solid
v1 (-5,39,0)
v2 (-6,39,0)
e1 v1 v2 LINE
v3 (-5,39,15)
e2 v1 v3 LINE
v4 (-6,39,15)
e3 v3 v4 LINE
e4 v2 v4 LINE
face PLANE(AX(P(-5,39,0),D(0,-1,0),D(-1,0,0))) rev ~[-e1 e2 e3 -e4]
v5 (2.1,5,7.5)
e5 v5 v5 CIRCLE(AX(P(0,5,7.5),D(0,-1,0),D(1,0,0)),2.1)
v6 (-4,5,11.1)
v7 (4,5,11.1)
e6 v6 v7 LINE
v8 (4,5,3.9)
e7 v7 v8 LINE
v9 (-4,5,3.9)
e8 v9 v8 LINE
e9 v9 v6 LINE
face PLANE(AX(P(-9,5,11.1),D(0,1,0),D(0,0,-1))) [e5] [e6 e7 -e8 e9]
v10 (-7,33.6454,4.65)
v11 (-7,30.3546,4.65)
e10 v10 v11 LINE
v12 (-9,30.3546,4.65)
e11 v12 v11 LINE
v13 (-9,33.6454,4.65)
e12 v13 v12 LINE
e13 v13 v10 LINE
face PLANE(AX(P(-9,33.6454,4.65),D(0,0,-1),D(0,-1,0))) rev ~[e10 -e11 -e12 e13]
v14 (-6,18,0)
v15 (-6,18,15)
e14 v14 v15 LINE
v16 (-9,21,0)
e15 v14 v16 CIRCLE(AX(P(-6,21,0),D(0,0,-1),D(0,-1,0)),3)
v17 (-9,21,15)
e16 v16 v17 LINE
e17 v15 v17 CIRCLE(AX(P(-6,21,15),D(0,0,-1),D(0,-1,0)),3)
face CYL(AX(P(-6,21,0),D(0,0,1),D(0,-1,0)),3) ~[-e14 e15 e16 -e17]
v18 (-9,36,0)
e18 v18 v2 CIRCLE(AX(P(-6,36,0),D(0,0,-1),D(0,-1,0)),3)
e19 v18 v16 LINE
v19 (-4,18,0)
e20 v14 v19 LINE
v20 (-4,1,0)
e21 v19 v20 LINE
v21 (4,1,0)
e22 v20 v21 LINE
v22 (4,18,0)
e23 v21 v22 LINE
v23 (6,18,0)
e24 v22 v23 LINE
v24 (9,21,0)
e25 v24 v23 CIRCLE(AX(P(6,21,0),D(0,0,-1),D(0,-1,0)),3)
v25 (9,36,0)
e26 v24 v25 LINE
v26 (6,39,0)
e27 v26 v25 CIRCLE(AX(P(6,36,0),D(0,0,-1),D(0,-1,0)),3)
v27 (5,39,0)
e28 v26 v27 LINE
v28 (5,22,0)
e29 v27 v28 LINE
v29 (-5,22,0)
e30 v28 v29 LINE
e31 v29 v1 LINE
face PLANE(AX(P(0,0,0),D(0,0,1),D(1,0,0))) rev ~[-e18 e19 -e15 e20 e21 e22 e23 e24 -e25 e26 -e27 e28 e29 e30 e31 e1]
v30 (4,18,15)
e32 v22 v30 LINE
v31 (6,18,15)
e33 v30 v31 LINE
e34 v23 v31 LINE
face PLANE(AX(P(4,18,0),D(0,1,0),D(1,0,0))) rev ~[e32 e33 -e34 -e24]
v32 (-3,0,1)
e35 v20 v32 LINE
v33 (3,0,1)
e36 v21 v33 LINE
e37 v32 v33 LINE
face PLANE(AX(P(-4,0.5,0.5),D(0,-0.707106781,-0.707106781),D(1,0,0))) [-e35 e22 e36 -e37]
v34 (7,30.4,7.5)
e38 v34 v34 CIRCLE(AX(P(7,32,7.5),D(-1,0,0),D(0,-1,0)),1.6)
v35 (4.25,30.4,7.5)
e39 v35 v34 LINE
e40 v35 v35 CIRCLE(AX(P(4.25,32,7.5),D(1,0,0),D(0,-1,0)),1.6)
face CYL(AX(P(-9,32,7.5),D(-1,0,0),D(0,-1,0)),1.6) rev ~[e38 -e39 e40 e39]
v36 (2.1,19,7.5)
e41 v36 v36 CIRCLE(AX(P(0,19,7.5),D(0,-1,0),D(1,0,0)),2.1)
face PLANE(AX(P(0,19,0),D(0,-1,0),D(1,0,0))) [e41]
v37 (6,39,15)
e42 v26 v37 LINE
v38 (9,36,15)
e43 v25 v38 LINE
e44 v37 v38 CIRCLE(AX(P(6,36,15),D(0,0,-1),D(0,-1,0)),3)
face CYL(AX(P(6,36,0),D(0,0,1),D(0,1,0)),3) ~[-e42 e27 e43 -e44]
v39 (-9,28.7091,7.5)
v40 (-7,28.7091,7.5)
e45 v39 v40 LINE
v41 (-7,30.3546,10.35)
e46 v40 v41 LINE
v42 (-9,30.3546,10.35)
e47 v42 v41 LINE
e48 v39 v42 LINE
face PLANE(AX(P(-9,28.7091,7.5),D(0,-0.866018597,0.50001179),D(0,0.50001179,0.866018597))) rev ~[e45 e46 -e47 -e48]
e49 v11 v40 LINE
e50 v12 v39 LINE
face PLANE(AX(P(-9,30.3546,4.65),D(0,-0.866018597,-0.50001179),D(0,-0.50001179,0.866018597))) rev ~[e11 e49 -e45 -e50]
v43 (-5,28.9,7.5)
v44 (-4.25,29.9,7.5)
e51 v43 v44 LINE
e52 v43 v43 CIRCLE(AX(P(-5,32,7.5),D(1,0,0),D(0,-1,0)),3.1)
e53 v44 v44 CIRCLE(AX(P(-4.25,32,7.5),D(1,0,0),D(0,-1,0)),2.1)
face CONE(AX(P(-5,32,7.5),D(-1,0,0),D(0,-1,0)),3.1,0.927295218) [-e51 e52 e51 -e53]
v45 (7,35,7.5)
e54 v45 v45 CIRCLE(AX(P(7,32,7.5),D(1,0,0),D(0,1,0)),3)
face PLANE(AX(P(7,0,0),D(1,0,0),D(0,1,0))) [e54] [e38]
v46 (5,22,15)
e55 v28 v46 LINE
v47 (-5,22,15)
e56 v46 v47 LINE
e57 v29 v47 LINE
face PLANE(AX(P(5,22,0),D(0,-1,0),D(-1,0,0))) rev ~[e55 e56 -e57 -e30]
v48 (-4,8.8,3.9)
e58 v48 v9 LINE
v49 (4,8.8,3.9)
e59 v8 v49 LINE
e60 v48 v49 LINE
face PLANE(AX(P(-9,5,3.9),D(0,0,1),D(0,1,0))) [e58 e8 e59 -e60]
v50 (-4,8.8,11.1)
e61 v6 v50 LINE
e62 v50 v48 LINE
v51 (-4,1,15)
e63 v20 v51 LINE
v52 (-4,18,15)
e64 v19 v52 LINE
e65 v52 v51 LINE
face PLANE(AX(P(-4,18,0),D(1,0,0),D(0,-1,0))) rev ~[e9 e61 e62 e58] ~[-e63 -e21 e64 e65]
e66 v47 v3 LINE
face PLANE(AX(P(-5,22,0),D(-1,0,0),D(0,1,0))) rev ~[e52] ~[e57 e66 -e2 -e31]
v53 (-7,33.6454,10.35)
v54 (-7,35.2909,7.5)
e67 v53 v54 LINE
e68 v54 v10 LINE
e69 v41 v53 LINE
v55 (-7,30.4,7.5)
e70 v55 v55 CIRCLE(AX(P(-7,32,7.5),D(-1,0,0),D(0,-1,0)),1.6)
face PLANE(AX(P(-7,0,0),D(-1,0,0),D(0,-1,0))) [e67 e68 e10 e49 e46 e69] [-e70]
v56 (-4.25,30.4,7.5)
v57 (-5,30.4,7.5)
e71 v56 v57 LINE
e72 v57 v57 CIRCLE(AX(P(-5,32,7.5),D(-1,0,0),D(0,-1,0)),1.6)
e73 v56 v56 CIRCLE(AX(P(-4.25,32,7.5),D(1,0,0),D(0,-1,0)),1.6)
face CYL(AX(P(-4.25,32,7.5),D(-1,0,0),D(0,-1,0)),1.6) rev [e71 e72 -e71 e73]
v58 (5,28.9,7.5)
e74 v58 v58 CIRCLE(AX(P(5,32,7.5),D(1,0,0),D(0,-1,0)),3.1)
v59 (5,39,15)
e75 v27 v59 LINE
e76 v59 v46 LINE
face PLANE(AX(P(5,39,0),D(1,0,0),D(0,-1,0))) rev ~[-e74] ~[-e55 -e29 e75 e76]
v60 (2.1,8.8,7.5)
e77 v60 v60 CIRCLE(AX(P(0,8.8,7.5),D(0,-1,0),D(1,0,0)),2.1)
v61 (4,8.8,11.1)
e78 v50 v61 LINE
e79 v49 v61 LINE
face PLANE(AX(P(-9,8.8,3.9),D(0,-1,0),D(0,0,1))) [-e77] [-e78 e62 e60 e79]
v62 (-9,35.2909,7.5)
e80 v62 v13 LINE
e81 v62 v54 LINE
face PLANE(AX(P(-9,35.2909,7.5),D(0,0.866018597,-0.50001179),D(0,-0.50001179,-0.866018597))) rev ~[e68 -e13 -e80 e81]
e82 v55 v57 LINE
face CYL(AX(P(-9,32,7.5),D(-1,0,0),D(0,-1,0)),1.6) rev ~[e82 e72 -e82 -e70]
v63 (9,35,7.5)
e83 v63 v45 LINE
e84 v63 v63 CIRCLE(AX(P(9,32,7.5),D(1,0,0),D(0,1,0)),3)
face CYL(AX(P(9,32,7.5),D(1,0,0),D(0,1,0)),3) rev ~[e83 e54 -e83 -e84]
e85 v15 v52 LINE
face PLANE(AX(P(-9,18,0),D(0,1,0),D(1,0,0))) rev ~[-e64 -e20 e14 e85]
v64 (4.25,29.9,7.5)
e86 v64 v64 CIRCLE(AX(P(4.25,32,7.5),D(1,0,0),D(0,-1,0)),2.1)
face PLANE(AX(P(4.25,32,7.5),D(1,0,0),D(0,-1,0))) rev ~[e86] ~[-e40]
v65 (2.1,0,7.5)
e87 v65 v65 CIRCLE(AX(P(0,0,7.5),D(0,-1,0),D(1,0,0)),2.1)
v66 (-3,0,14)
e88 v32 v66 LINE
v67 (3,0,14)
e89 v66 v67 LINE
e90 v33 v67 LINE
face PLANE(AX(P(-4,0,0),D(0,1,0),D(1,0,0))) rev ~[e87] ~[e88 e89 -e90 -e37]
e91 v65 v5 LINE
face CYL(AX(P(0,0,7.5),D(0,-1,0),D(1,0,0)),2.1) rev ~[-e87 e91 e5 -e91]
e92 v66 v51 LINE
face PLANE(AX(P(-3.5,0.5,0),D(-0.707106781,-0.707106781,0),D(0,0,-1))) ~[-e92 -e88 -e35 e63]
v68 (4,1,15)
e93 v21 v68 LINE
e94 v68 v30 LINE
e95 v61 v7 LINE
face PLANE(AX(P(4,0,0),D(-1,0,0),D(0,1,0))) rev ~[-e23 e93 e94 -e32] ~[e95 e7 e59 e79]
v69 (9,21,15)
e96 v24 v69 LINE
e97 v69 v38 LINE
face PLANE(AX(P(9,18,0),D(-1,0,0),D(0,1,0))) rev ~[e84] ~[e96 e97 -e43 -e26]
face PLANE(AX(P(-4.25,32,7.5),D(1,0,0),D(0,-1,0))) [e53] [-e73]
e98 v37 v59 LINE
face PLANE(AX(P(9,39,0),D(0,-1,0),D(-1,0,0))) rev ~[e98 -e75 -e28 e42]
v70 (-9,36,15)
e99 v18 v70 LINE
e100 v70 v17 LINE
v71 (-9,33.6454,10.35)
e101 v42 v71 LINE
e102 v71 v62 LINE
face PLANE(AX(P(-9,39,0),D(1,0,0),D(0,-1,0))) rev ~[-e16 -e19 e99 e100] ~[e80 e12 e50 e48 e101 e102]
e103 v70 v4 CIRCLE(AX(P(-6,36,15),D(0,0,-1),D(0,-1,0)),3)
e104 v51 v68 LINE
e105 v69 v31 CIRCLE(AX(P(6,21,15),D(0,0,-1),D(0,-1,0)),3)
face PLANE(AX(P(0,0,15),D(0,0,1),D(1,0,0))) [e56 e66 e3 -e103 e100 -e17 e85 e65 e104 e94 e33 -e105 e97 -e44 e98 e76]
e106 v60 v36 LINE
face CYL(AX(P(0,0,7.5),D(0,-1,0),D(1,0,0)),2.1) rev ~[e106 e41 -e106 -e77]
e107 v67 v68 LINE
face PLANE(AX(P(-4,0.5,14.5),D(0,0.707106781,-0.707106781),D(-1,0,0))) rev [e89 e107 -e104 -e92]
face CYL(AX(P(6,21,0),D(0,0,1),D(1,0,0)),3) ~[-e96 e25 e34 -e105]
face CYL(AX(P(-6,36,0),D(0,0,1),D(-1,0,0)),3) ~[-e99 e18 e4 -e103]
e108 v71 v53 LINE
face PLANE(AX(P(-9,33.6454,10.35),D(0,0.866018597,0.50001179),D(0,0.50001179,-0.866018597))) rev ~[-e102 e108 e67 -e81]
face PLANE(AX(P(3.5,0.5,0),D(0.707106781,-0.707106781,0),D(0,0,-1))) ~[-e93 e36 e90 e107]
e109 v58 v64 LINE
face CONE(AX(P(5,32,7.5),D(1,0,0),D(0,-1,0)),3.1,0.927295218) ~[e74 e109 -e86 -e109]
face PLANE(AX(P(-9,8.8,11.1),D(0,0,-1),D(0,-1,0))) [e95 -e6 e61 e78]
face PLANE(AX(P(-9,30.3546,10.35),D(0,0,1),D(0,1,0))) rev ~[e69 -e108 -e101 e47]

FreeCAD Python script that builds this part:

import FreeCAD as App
import Part
import Sketcher
from FreeCAD import Vector
Q = App.Units.Quantity


def edges_at(feature, points):
    """Names of the edges that pass closest to the given points."""
    edges = feature.Shape.Edges
    near = lambda p: min(range(len(edges)), key=lambda i: edges[i].distToShape(Part.Vertex(*p))[0])
    return sorted({f"Edge{near(p) + 1}" for p in points})


def add_polygon(sketch, points):
    """Adds a closed chain of lines whose ends are joined by coincident constraints."""
    first, n = sketch.GeometryCount, len(points)
    for a, b in zip(points, points[1:] + points[:1]):
        sketch.addGeometry(Part.LineSegment(App.Vector(*a, 0), App.Vector(*b, 0)), False)
    for i in range(n):
        sketch.addConstraint(Sketcher.Constraint("Coincident", first + i, 2, first + (i + 1) % n, 1))

doc = App.newDocument("Part")
body = doc.addObject("PartDesign::Body", "Body")

sketch1 = doc.addObject("Sketcher::SketchObject", "Sketch")
body.addObject(sketch1)
sketch1.AttachmentSupport = (doc.XY_Plane, [""])
sketch1.MapMode = "FlatFace"
add_polygon(sketch1, [(-4, 0), (4, 0), (4, 18), (9, 18), (9, 39), (5, 39), (5, 22), (-5, 22), (-5, 39), (-9, 39), (-9, 18), (-4, 18)])
sketch1.addConstraint(Sketcher.Constraint("Horizontal", 0))
sketch1.addConstraint(Sketcher.Constraint("Vertical", 1))
sketch1.addConstraint(Sketcher.Constraint("Horizontal", 2))
sketch1.addConstraint(Sketcher.Constraint("Vertical", 3))
sketch1.addConstraint(Sketcher.Constraint("Horizontal", 4))
sketch1.addConstraint(Sketcher.Constraint("Vertical", 5))
sketch1.addConstraint(Sketcher.Constraint("Horizontal", 6))
sketch1.addConstraint(Sketcher.Constraint("Vertical", 7))
sketch1.addConstraint(Sketcher.Constraint("Horizontal", 8))
sketch1.addConstraint(Sketcher.Constraint("Vertical", 9))
sketch1.addConstraint(Sketcher.Constraint("Horizontal", 10))
sketch1.addConstraint(Sketcher.Constraint("Vertical", 11))
sketch1.addConstraint(Sketcher.Constraint("Symmetric", 0, 2, 11, 2, -1, 1))
sketch1.addConstraint(Sketcher.Constraint("Symmetric", 4, 2, 7, 2, -2))
sketch1.addConstraint(Sketcher.Constraint("Symmetric", 2, 2, 9, 2, -2))
sketch1.addConstraint(Sketcher.Constraint("DistanceX", 0, 1, 0, 2, Q("8 mm")))
sketch1.addConstraint(Sketcher.Constraint("DistanceX", 4, 2, 4, 1, Q("4 mm")))
sketch1.addConstraint(Sketcher.Constraint("DistanceX", 6, 2, 6, 1, Q("10 mm")))
sketch1.addConstraint(Sketcher.Constraint("DistanceY", 1, 1, 1, 2, Q("18 mm")))
sketch1.addConstraint(Sketcher.Constraint("DistanceY", 5, 2, 5, 1, Q("17 mm")))
sketch1.addConstraint(Sketcher.Constraint("DistanceY", 1, 2, 5, 2, Q("4 mm")))
pad1 = doc.addObject("PartDesign::Pad", "Pad")
body.addObject(pad1)
pad1.Profile = sketch1
pad1.Length = 15

sketch2 = doc.addObject("Sketcher::SketchObject", "Sketch001")
body.addObject(sketch2)
sketch2.AttachmentSupport = (doc.YZ_Plane, [""])
sketch2.MapMode = "FlatFace"
sketch2.AttachmentOffset = App.Placement(Vector(0, 0, -9), App.Rotation())
sketch2.addGeometry(Part.Circle(Vector(32, 7.5, 0), Vector(0, 0, 1), 1.6), False)
add_polygon(sketch2, [(5, 11.1), (8.8, 11.1), (8.8, 3.9), (5, 3.9)])
sketch2.addConstraint(Sketcher.Constraint("Horizontal", 1))
sketch2.addConstraint(Sketcher.Constraint("Vertical", 2))
sketch2.addConstraint(Sketcher.Constraint("Horizontal", 3))
sketch2.addConstraint(Sketcher.Constraint("Vertical", 4))
sketch2.addConstraint(Sketcher.Constraint("Diameter", 0, Q("3.2 mm")))
sketch2.addConstraint(Sketcher.Constraint("DistanceX", 1, 1, 1, 2, Q("3.8 mm")))
sketch2.addConstraint(Sketcher.Constraint("DistanceY", 2, 2, 2, 1, Q("7.2 mm")))
sketch2.addConstraint(Sketcher.Constraint("DistanceX", -1, 1, 3, 2, Q("5 mm")))
sketch2.addConstraint(Sketcher.Constraint("DistanceX", -1, 1, 0, 3, Q("32 mm")))
sketch2.addConstraint(Sketcher.Constraint("DistanceY", -1, 1, 0, 3, Q("7.5 mm")))
sketch2.addConstraint(Sketcher.Constraint("DistanceY", -1, 1, 1, 2, Q("11.1 mm")))
pocket1 = doc.addObject("PartDesign::Pocket", "Pocket")
body.addObject(pocket1)
pocket1.Profile = sketch2
pocket1.Length = 18
pocket1.Reversed = True

sketch3 = doc.addObject("Sketcher::SketchObject", "Sketch002")
body.addObject(sketch3)
sketch3.AttachmentSupport = (doc.XY_Plane, [""])
sketch3.MapMode = "FlatFace"
sketch3.AttachmentOffset = App.Placement(Vector(0, 0, 7.5), App.Rotation())
add_polygon(sketch3, [(-4.25, 30.4), (-5, 30.4), (-5, 28.9), (-4.25, 29.9)])
add_polygon(sketch3, [(5, 28.9), (5, 30.4), (4.25, 30.4), (4.25, 29.9)])
sketch3.addGeometry(Part.LineSegment(Vector(-5, 32, 0), Vector(5, 32, 0)), True)
sketch3.addConstraint(Sketcher.Constraint("Horizontal", 0))
sketch3.addConstraint(Sketcher.Constraint("Vertical", 1))
sketch3.addConstraint(Sketcher.Constraint("Vertical", 3))
sketch3.addConstraint(Sketcher.Constraint("Vertical", 4))
sketch3.addConstraint(Sketcher.Constraint("Horizontal", 5))
sketch3.addConstraint(Sketcher.Constraint("Vertical", 6))
sketch3.addConstraint(Sketcher.Constraint("Horizontal", 8))
sketch3.addConstraint(Sketcher.Constraint("Symmetric", 0, 2, 4, 2, -2))
sketch3.addConstraint(Sketcher.Constraint("Symmetric", 2, 2, 6, 2, -2))
sketch3.addConstraint(Sketcher.Constraint("Horizontal", 1, 2, 7, 2))
sketch3.addConstraint(Sketcher.Constraint("Vertical", 1, 2, 8, 1))
sketch3.addConstraint(Sketcher.Constraint("Vertical", 7, 2, 8, 2))
sketch3.addConstraint(Sketcher.Constraint("DistanceY", 1, 2, 1, 1, Q("1.5 mm")))
sketch3.addConstraint(Sketcher.Constraint("DistanceY", 3, 1, 3, 2, Q("0.5 mm")))
sketch3.addConstraint(Sketcher.Constraint("DistanceX", 0, 2, 0, 1, Q("0.75 mm")))
sketch3.addConstraint(Sketcher.Constraint("DistanceX", 8, 1, 8, 2, Q("10 mm")))
sketch3.addConstraint(Sketcher.Constraint("DistanceY", -1, 1, 8, 1, Q("32 mm")))
sketch3.addConstraint(Sketcher.Constraint("DistanceY", -1, 1, 0, 2, Q("30.4 mm")))
revolution = doc.addObject("PartDesign::Revolution", "Revolution")
body.addObject(revolution)
revolution.Profile = sketch3
revolution.ReferenceAxis = (sketch3, ["Axis0"])
revolution.Angle = 360

sketch4 = doc.addObject("Sketcher::SketchObject", "Sketch003")
body.addObject(sketch4)
sketch4.AttachmentSupport = (doc.XZ_Plane, [""])
sketch4.MapMode = "FlatFace"
sketch4.addGeometry(Part.Circle(Vector(0, 7.5, 0), Vector(0, 0, 1), 2.1), False)
sketch4.addConstraint(Sketcher.Constraint("PointOnObject", 0, 3, -2))
sketch4.addConstraint(Sketcher.Constraint("Diameter", 0, Q("4.2 mm")))
sketch4.addConstraint(Sketcher.Constraint("DistanceY", -1, 1, 0, 3, Q("7.5 mm")))
pocket2 = doc.addObject("PartDesign::Pocket", "Pocket001")
body.addObject(pocket2)
pocket2.Profile = sketch4
pocket2.Length = 19
doc.recompute()

fillet = doc.addObject("PartDesign::Fillet", "Fillet")
body.addObject(fillet)
fillet.Base = (pocket2, edges_at(pocket2, [
    (-9, 18, 7.5),
    (-9, 39, 7.5),
    (9, 39, 7.5),
    (9, 18, 7.5),
]))
fillet.Radius = 3
doc.recompute()

chamfer = doc.addObject("PartDesign::Chamfer", "Chamfer")
body.addObject(chamfer)
chamfer.Base = (fillet, edges_at(fillet, [
    (0, 0, 15),
    (-4, 0, 7.5),
    (0, 0, 0),
    (4, 0, 7.5),
]))
chamfer.Size = 1

sketch5 = doc.addObject("Sketcher::SketchObject", "Sketch004")
body.addObject(sketch5)
sketch5.AttachmentSupport = (doc.YZ_Plane, [""])
sketch5.MapMode = "FlatFace"
sketch5.AttachmentOffset = App.Placement(Vector(0, 0, -9), App.Rotation())
add_polygon(sketch5, [(30.3546, 10.35), (33.6454, 10.35), (35.2909, 7.5), (33.6454, 4.65), (30.3546, 4.65), (28.7091, 7.5)])
sketch5.addGeometry(Part.Circle(Vector(32, 7.5, 0), Vector(0, 0, 1), 1.6), False)
sketch5.addConstraint(Sketcher.Constraint("Horizontal", 0))
sketch5.addConstraint(Sketcher.Constraint("Horizontal", 3))
sketch5.addConstraint(Sketcher.Constraint("Parallel", 1, 4))
sketch5.addConstraint(Sketcher.Constraint("Parallel", 2, 5))
sketch5.addConstraint(Sketcher.Constraint("Horizontal", 6, 3, 1, 2))
sketch5.addConstraint(Sketcher.Constraint("Horizontal", 1, 2, 4, 2))
sketch5.addConstraint(Sketcher.Constraint("Vertical", 0, 2, 2, 2))
sketch5.addConstraint(Sketcher.Constraint("Vertical", 3, 2, 5, 2))
sketch5.addConstraint(Sketcher.Constraint("Diameter", 6, Q("3.2 mm")))
sketch5.addConstraint(Sketcher.Constraint("DistanceY", 2, 2, 0, 2, Q("5.7 mm")))
sketch5.addConstraint(Sketcher.Constraint("Angle", 1, Q("-59.9992 deg")))
sketch5.addConstraint(Sketcher.Constraint("DistanceX", -1, 1, 6, 3, Q("32 mm")))
sketch5.addConstraint(Sketcher.Constraint("DistanceY", -1, 1, 6, 3, Q("7.5 mm")))
sketch5.addConstraint(Sketcher.Constraint("DistanceX", 0, 1, 0, 2, Q("3.2908 mm")))
sketch5.addConstraint(Sketcher.Constraint("DistanceX", -1, 1, 1, 2, Q("35.291 mm")))
pocket3 = doc.addObject("PartDesign::Pocket", "Pocket002")
body.addObject(pocket3)
pocket3.Profile = sketch5
pocket3.Length = 2
pocket3.Reversed = True

sketch6 = doc.addObject("Sketcher::SketchObject", "Sketch005")
body.addObject(sketch6)
sketch6.AttachmentSupport = (doc.YZ_Plane, [""])
sketch6.MapMode = "FlatFace"
sketch6.AttachmentOffset = App.Placement(Vector(0, 0, 9), App.Rotation())
sketch6.addGeometry(Part.Circle(Vector(32, 7.5, 0), Vector(0, 0, 1), 3), False)
sketch6.addGeometry(Part.Circle(Vector(32, 7.5, 0), Vector(0, 0, 1), 1.6), False)
sketch6.addConstraint(Sketcher.Constraint("Coincident", 1, 3, 0, 3))
sketch6.addConstraint(Sketcher.Constraint("Diameter", 0, Q("6 mm")))
sketch6.addConstraint(Sketcher.Constraint("Diameter", 1, Q("3.2 mm")))
sketch6.addConstraint(Sketcher.Constraint("DistanceX", -1, 1, 0, 3, Q("32 mm")))
sketch6.addConstraint(Sketcher.Constraint("DistanceY", -1, 1, 0, 3, Q("7.5 mm")))
pocket4 = doc.addObject("PartDesign::Pocket", "Pocket003")
body.addObject(pocket4)
pocket4.Profile = sketch6
pocket4.Length = 2

doc.recompute()
